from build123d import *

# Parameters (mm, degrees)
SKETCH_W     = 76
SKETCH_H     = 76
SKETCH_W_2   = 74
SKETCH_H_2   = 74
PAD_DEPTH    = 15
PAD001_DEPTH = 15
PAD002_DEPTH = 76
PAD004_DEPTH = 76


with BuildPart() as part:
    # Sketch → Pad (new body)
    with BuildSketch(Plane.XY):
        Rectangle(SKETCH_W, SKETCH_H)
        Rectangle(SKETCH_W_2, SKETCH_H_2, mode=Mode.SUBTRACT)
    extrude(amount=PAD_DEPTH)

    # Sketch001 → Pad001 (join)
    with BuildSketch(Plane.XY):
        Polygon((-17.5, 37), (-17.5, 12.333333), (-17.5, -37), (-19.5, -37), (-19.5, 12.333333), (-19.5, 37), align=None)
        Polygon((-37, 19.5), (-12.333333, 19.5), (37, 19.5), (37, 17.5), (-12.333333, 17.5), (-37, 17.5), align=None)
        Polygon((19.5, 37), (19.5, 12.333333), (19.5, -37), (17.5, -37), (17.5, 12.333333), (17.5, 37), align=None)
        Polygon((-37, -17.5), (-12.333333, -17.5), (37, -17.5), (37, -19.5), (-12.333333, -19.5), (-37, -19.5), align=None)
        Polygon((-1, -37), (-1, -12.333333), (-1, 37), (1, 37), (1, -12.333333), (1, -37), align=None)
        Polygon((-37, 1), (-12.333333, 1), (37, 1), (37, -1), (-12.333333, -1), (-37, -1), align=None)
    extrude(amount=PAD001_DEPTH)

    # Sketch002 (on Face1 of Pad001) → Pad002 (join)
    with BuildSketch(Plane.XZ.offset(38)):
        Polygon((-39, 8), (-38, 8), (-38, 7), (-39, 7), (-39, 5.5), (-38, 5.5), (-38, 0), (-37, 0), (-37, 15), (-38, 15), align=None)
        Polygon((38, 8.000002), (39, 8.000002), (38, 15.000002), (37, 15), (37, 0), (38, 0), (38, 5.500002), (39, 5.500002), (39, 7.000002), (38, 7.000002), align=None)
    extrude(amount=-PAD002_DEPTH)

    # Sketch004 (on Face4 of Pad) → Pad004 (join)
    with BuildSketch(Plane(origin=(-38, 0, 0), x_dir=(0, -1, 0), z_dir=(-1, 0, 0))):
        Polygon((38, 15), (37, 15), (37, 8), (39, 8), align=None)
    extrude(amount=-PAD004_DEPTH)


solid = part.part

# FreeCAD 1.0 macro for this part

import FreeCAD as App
import Part
import Sketcher

doc = App.newDocument("Part")
body = doc.addObject("PartDesign::Body", "Body")

sketch1 = body.newObject("Sketcher::SketchObject", "Sketch")
sketch1.AttachmentSupport = (doc.getObject("XY_Plane"), [""])
sketch1.MapMode = "FlatFace"
sketch1.addGeometry([
    Part.LineSegment(App.Vector(-38, 38, 0), App.Vector(-38, -38, 0)),
    Part.LineSegment(App.Vector(-38, -38, 0), App.Vector(38, -38, 0)),
    Part.LineSegment(App.Vector(38, -38, 0), App.Vector(38, 38, 0)),
    Part.LineSegment(App.Vector(38, 38, 0), App.Vector(-38, 38, 0)),
    Part.LineSegment(App.Vector(37, -37, 0), App.Vector(-37, -37, 0)),
    Part.LineSegment(App.Vector(-37, -37, 0), App.Vector(-37, 37, 0)),
    Part.LineSegment(App.Vector(-37, 37, 0), App.Vector(37, 37, 0)),
    Part.LineSegment(App.Vector(37, 37, 0), App.Vector(37, -37, 0)),
], False)
sketch1.addConstraint([
    Sketcher.Constraint("Coincident", 0, 2, 1, 1),
    Sketcher.Constraint("Coincident", 1, 2, 2, 1),
    Sketcher.Constraint("Coincident", 2, 2, 3, 1),
    Sketcher.Constraint("Coincident", 3, 2, 0, 1),
    Sketcher.Constraint("Coincident", 4, 2, 5, 1),
    Sketcher.Constraint("Coincident", 5, 2, 6, 1),
    Sketcher.Constraint("Coincident", 6, 2, 7, 1),
    Sketcher.Constraint("Coincident", 7, 2, 4, 1),
    Sketcher.Constraint("Vertical", 0),
    Sketcher.Constraint("Horizontal", 1),
    Sketcher.Constraint("Vertical", 2),
    Sketcher.Constraint("Horizontal", 3),
    Sketcher.Constraint("Horizontal", 4),
    Sketcher.Constraint("Vertical", 5),
    Sketcher.Constraint("Horizontal", 6),
    Sketcher.Constraint("Vertical", 7),
    Sketcher.Constraint("Symmetric", 0, 2, 2, 2, -1, 1),
    Sketcher.Constraint("Symmetric", 4, 2, 6, 2, -1, 1),
    Sketcher.Constraint("Equal", 3, 0),
    Sketcher.Constraint("Equal", 6, 5),
    Sketcher.Constraint("DistanceX", 1, 1, 1, 2, 76.0),
    Sketcher.Constraint("DistanceX", 4, 2, 4, 1, 74.0),
])
pad1 = body.newObject("PartDesign::Pad", "Pad")
pad1.Profile = sketch1
pad1.Length = 15

sketch2 = body.newObject("Sketcher::SketchObject", "Sketch001")
sketch2.AttachmentSupport = (doc.getObject("XY_Plane"), [""])
sketch2.MapMode = "FlatFace"
sketch2.addGeometry([
    Part.LineSegment(App.Vector(-17.5, -37, 0), App.Vector(-17.5, -19.5, 0)),
    Part.LineSegment(App.Vector(-17.5, -19.5, 0), App.Vector(-1, -19.5, 0)),
    Part.LineSegment(App.Vector(-1, -19.5, 0), App.Vector(-1, -37, 0)),
    Part.LineSegment(App.Vector(-1, -37, 0), App.Vector(1, -37, 0)),
    Part.LineSegment(App.Vector(1, -37, 0), App.Vector(1, -19.5, 0)),
    Part.LineSegment(App.Vector(1, -19.5, 0), App.Vector(17.5, -19.5, 0)),
    Part.LineSegment(App.Vector(17.5, -19.5, 0), App.Vector(17.5, -37, 0)),
    Part.LineSegment(App.Vector(17.5, -37, 0), App.Vector(19.5, -37, 0)),
    Part.LineSegment(App.Vector(19.5, -37, 0), App.Vector(19.5, -19.5, 0)),
    Part.LineSegment(App.Vector(19.5, -19.5, 0), App.Vector(37, -19.5, 0)),
    Part.LineSegment(App.Vector(37, -19.5, 0), App.Vector(37, -17.5, 0)),
    Part.LineSegment(App.Vector(37, -17.5, 0), App.Vector(19.5, -17.5, 0)),
    Part.LineSegment(App.Vector(19.5, -17.5, 0), App.Vector(19.5, -1, 0)),
    Part.LineSegment(App.Vector(19.5, -1, 0), App.Vector(37, -1, 0)),
    Part.LineSegment(App.Vector(37, -1, 0), App.Vector(37, 1, 0)),
    Part.LineSegment(App.Vector(37, 1, 0), App.Vector(19.5, 1, 0)),
    Part.LineSegment(App.Vector(19.5, 1, 0), App.Vector(19.5, 17.5, 0)),
    Part.LineSegment(App.Vector(19.5, 17.5, 0), App.Vector(37, 17.5, 0)),
    Part.LineSegment(App.Vector(37, 17.5, 0), App.Vector(37, 19.5, 0)),
    Part.LineSegment(App.Vector(37, 19.5, 0), App.Vector(19.5, 19.5, 0)),
    Part.LineSegment(App.Vector(19.5, 19.5, 0), App.Vector(19.5, 37, 0)),
    Part.LineSegment(App.Vector(19.5, 37, 0), App.Vector(17.5, 37, 0)),
    Part.LineSegment(App.Vector(17.5, 37, 0), App.Vector(17.5, 19.5, 0)),
    Part.LineSegment(App.Vector(17.5, 19.5, 0), App.Vector(1, 19.5, 0)),
    Part.LineSegment(App.Vector(1, 19.5, 0), App.Vector(1, 37, 0)),
    Part.LineSegment(App.Vector(1, 37, 0), App.Vector(-1, 37, 0)),
    Part.LineSegment(App.Vector(-1, 37, 0), App.Vector(-1, 19.5, 0)),
    Part.LineSegment(App.Vector(-1, 19.5, 0), App.Vector(-17.5, 19.5, 0)),
    Part.LineSegment(App.Vector(-17.5, 19.5, 0), App.Vector(-17.5, 37, 0)),
    Part.LineSegment(App.Vector(-17.5, 37, 0), App.Vector(-19.5, 37, 0)),
    Part.LineSegment(App.Vector(-19.5, 37, 0), App.Vector(-19.5, 19.5, 0)),
    Part.LineSegment(App.Vector(-19.5, 19.5, 0), App.Vector(-37, 19.5, 0)),
    Part.LineSegment(App.Vector(-37, 19.5, 0), App.Vector(-37, 17.5, 0)),
    Part.LineSegment(App.Vector(-37, 17.5, 0), App.Vector(-19.5, 17.5, 0)),
    Part.LineSegment(App.Vector(-19.5, 17.5, 0), App.Vector(-19.5, 1, 0)),
    Part.LineSegment(App.Vector(-19.5, 1, 0), App.Vector(-37, 1, 0)),
    Part.LineSegment(App.Vector(-37, 1, 0), App.Vector(-37, -1, 0)),
    Part.LineSegment(App.Vector(-37, -1, 0), App.Vector(-19.5, -1, 0)),
    Part.LineSegment(App.Vector(-19.5, -1, 0), App.Vector(-19.5, -17.5, 0)),
    Part.LineSegment(App.Vector(-19.5, -17.5, 0), App.Vector(-37, -17.5, 0)),
    Part.LineSegment(App.Vector(-37, -17.5, 0), App.Vector(-37, -19.5, 0)),
    Part.LineSegment(App.Vector(-37, -19.5, 0), App.Vector(-19.5, -19.5, 0)),
    Part.LineSegment(App.Vector(-19.5, -19.5, 0), App.Vector(-19.5, -37, 0)),
    Part.LineSegment(App.Vector(-19.5, -37, 0), App.Vector(-17.5, -37, 0)),
    Part.LineSegment(App.Vector(17.5, -1, 0), App.Vector(17.5, -17.5, 0)),
    Part.LineSegment(App.Vector(17.5, -17.5, 0), App.Vector(1, -17.5, 0)),
    Part.LineSegment(App.Vector(1, -17.5, 0), App.Vector(1, -1, 0)),
    Part.LineSegment(App.Vector(1, -1, 0), App.Vector(17.5, -1, 0)),
    Part.LineSegment(App.Vector(-1, -1, 0), App.Vector(-1, -17.5, 0)),
    Part.LineSegment(App.Vector(-1, -17.5, 0), App.Vector(-17.5, -17.5, 0)),
    Part.LineSegment(App.Vector(-17.5, -17.5, 0), App.Vector(-17.5, -1, 0)),
    Part.LineSegment(App.Vector(-17.5, -1, 0), App.Vector(-1, -1, 0)),
    Part.LineSegment(App.Vector(-17.5, 1, 0), App.Vector(-17.5, 17.5, 0)),
    Part.LineSegment(App.Vector(-17.5, 17.5, 0), App.Vector(-1, 17.5, 0)),
    Part.LineSegment(App.Vector(-1, 17.5, 0), App.Vector(-1, 1, 0)),
    Part.LineSegment(App.Vector(-1, 1, 0), App.Vector(-17.5, 1, 0)),
    Part.LineSegment(App.Vector(1, 1, 0), App.Vector(1, 17.5, 0)),
    Part.LineSegment(App.Vector(1, 17.5, 0), App.Vector(17.5, 17.5, 0)),
    Part.LineSegment(App.Vector(17.5, 17.5, 0), App.Vector(17.5, 1, 0)),
    Part.LineSegment(App.Vector(17.5, 1, 0), App.Vector(1, 1, 0)),
], False)
sketch2.addConstraint([
    Sketcher.Constraint("Coincident", 0, 2, 1, 1),
    Sketcher.Constraint("Coincident", 1, 2, 2, 1),
    Sketcher.Constraint("Coincident", 2, 2, 3, 1),
    Sketcher.Constraint("Coincident", 3, 2, 4, 1),
    Sketcher.Constraint("Coincident", 4, 2, 5, 1),
    Sketcher.Constraint("Coincident", 5, 2, 6, 1),
    Sketcher.Constraint("Coincident", 6, 2, 7, 1),
    Sketcher.Constraint("Coincident", 7, 2, 8, 1),
    Sketcher.Constraint("Coincident", 8, 2, 9, 1),
    Sketcher.Constraint("Coincident", 9, 2, 10, 1),
    Sketcher.Constraint("Coincident", 10, 2, 11, 1),
    Sketcher.Constraint("Coincident", 11, 2, 12, 1),
    Sketcher.Constraint("Coincident", 12, 2, 13, 1),
    Sketcher.Constraint("Coincident", 13, 2, 14, 1),
    Sketcher.Constraint("Coincident", 14, 2, 15, 1),
    Sketcher.Constraint("Coincident", 15, 2, 16, 1),
    Sketcher.Constraint("Coincident", 16, 2, 17, 1),
    Sketcher.Constraint("Coincident", 17, 2, 18, 1),
    Sketcher.Constraint("Coincident", 18, 2, 19, 1),
    Sketcher.Constraint("Coincident", 19, 2, 20, 1),
    Sketcher.Constraint("Coincident", 20, 2, 21, 1),
    Sketcher.Constraint("Coincident", 21, 2, 22, 1),
    Sketcher.Constraint("Coincident", 22, 2, 23, 1),
    Sketcher.Constraint("Coincident", 23, 2, 24, 1),
    Sketcher.Constraint("Coincident", 24, 2, 25, 1),
    Sketcher.Constraint("Coincident", 25, 2, 26, 1),
    Sketcher.Constraint("Coincident", 26, 2, 27, 1),
    Sketcher.Constraint("Coincident", 27, 2, 28, 1),
    Sketcher.Constraint("Coincident", 28, 2, 29, 1),
    Sketcher.Constraint("Coincident", 29, 2, 30, 1),
    Sketcher.Constraint("Coincident", 30, 2, 31, 1),
    Sketcher.Constraint("Coincident", 31, 2, 32, 1),
    Sketcher.Constraint("Coincident", 32, 2, 33, 1),
    Sketcher.Constraint("Coincident", 33, 2, 34, 1),
    Sketcher.Constraint("Coincident", 34, 2, 35, 1),
    Sketcher.Constraint("Coincident", 35, 2, 36, 1),
    Sketcher.Constraint("Coincident", 36, 2, 37, 1),
    Sketcher.Constraint("Coincident", 37, 2, 38, 1),
    Sketcher.Constraint("Coincident", 38, 2, 39, 1),
    Sketcher.Constraint("Coincident", 39, 2, 40, 1),
    Sketcher.Constraint("Coincident", 40, 2, 41, 1),
    Sketcher.Constraint("Coincident", 41, 2, 42, 1),
    Sketcher.Constraint("Coincident", 42, 2, 43, 1),
    Sketcher.Constraint("Coincident", 43, 2, 0, 1),
    Sketcher.Constraint("Coincident", 44, 2, 45, 1),
    Sketcher.Constraint("Coincident", 45, 2, 46, 1),
    Sketcher.Constraint("Coincident", 46, 2, 47, 1),
    Sketcher.Constraint("Coincident", 47, 2, 44, 1),
    Sketcher.Constraint("Coincident", 48, 2, 49, 1),
    Sketcher.Constraint("Coincident", 49, 2, 50, 1),
    Sketcher.Constraint("Coincident", 50, 2, 51, 1),
    Sketcher.Constraint("Coincident", 51, 2, 48, 1),
    Sketcher.Constraint("Coincident", 52, 2, 53, 1),
    Sketcher.Constraint("Coincident", 53, 2, 54, 1),
    Sketcher.Constraint("Coincident", 54, 2, 55, 1),
    Sketcher.Constraint("Coincident", 55, 2, 52, 1),
    Sketcher.Constraint("Coincident", 56, 2, 57, 1),
    Sketcher.Constraint("Coincident", 57, 2, 58, 1),
    Sketcher.Constraint("Coincident", 58, 2, 59, 1),
    Sketcher.Constraint("Coincident", 59, 2, 56, 1),
    Sketcher.Constraint("Vertical", 0),
    Sketcher.Constraint("Horizontal", 1),
    Sketcher.Constraint("Vertical", 2),
    Sketcher.Constraint("Horizontal", 3),
    Sketcher.Constraint("Vertical", 4),
    Sketcher.Constraint("Horizontal", 5),
    Sketcher.Constraint("Vertical", 6),
    Sketcher.Constraint("Horizontal", 7),
    Sketcher.Constraint("Vertical", 8),
    Sketcher.Constraint("Horizontal", 9),
    Sketcher.Constraint("Vertical", 10),
    Sketcher.Constraint("Horizontal", 11),
    Sketcher.Constraint("Vertical", 12),
    Sketcher.Constraint("Horizontal", 13),
    Sketcher.Constraint("Vertical", 14),
    Sketcher.Constraint("Horizontal", 15),
    Sketcher.Constraint("Vertical", 16),
    Sketcher.Constraint("Horizontal", 17),
    Sketcher.Constraint("Vertical", 18),
    Sketcher.Constraint("Horizontal", 19),
    Sketcher.Constraint("Vertical", 20),
    Sketcher.Constraint("Horizontal", 21),
    Sketcher.Constraint("Vertical", 22),
    Sketcher.Constraint("Horizontal", 23),
    Sketcher.Constraint("Vertical", 24),
    Sketcher.Constraint("Horizontal", 25),
    Sketcher.Constraint("Vertical", 26),
    Sketcher.Constraint("Horizontal", 27),
    Sketcher.Constraint("Vertical", 28),
    Sketcher.Constraint("Horizontal", 29),
    Sketcher.Constraint("Vertical", 30),
    Sketcher.Constraint("Horizontal", 31),
    Sketcher.Constraint("Vertical", 32),
    Sketcher.Constraint("Horizontal", 33),
    Sketcher.Constraint("Vertical", 34),
    Sketcher.Constraint("Horizontal", 35),
    Sketcher.Constraint("Vertical", 36),
    Sketcher.Constraint("Horizontal", 37),
    Sketcher.Constraint("Vertical", 38),
    Sketcher.Constraint("Horizontal", 39),
    Sketcher.Constraint("Vertical", 40),
    Sketcher.Constraint("Horizontal", 41),
    Sketcher.Constraint("Vertical", 42),
    Sketcher.Constraint("Horizontal", 43),
    Sketcher.Constraint("Vertical", 44),
    Sketcher.Constraint("Horizontal", 45),
    Sketcher.Constraint("Vertical", 46),
    Sketcher.Constraint("Horizontal", 47),
    Sketcher.Constraint("Vertical", 48),
    Sketcher.Constraint("Horizontal", 49),
    Sketcher.Constraint("Vertical", 50),
    Sketcher.Constraint("Horizontal", 51),
    Sketcher.Constraint("Vertical", 52),
    Sketcher.Constraint("Horizontal", 53),
    Sketcher.Constraint("Vertical", 54),
    Sketcher.Constraint("Horizontal", 55),
    Sketcher.Constraint("Vertical", 56),
    Sketcher.Constraint("Horizontal", 57),
    Sketcher.Constraint("Vertical", 58),
    Sketcher.Constraint("Horizontal", 59),
    Sketcher.Constraint("Symmetric", 0, 2, 22, 2, -1, 1),
    Sketcher.Constraint("Symmetric", 2, 2, 24, 2, -1, 1),
    Sketcher.Constraint("Symmetric", 4, 2, 26, 2, -1, 1),
    Sketcher.Constraint("Symmetric", 6, 2, 28, 2, -1, 1),
    Sketcher.Constraint("Symmetric", 8, 2, 30, 2, -1, 1),
    Sketcher.Constraint("Symmetric", 10, 2, 32, 2, -1, 1),
    Sketcher.Constraint("Symmetric", 12, 2, 34, 2, -1, 1),
    Sketcher.Constraint("Symmetric", 14, 2, 36, 2, -1, 1),
    Sketcher.Constraint("Symmetric", 16, 2, 38, 2, -1, 1),
    Sketcher.Constraint("Symmetric", 18, 2, 40, 2, -1, 1),
    Sketcher.Constraint("Symmetric", 20, 2, 42, 2, -1, 1),
    Sketcher.Constraint("Symmetric", 44, 2, 52, 2, -1, 1),
    Sketcher.Constraint("Symmetric", 46, 2, 54, 2, -1, 1),
    Sketcher.Constraint("Symmetric", 48, 2, 56, 2, -1, 1),
    Sketcher.Constraint("Symmetric", 50, 2, 58, 2, -1, 1),
    Sketcher.Constraint("Symmetric", 1, 2, 4, 2, -2),
    Sketcher.Constraint("Symmetric", 21, 2, 28, 2, -2),
    Sketcher.Constraint("Symmetric", 19, 2, 30, 2, -2),
    Sketcher.Constraint("Symmetric", 17, 2, 32, 2, -2),
    Sketcher.Constraint("Symmetric", 15, 2, 34, 2, -2),
    Sketcher.Constraint("Symmetric", 45, 2, 48, 2, -2),
    Sketcher.Constraint("Symmetric", 47, 2, 50, 2, -2),
    Sketcher.Constraint("Horizontal", 3, 2, 6, 2),
    Sketcher.Constraint("Horizontal", 5, 2, 8, 2),
    Sketcher.Constraint("Horizontal", 39, 2, 44, 2),
    Sketcher.Constraint("Horizontal", 37, 2, 46, 2),
    Sketcher.Constraint("Vertical", 8, 2, 11, 2),
    Sketcher.Constraint("Vertical", 10, 2, 13, 2),
    Sketcher.Constraint("Vertical", 22, 2, 44, 2),
    Sketcher.Constraint("Vertical", 24, 2, 45, 2),
    Sketcher.Constraint("Equal", 3, 7),
    Sketcher.Constraint("Equal", 41, 0),
    Sketcher.Constraint("Equal", 43, 10),
    Sketcher.Constraint("Equal", 59, 12),
    Sketcher.Constraint("Equal", 10, 14),
    Sketcher.Constraint("DistanceX", 3, 1, 3, 2, 2.0),
    Sketcher.Constraint("DistanceX", 1, 1, 1, 2, 16.5),
    Sketcher.Constraint("DistanceX", 9, 1, 9, 2, 17.5),
])
pad2 = body.newObject("PartDesign::Pad", "Pad001")
pad2.Profile = sketch2
pad2.Length = 15

sketch3 = body.newObject("Sketcher::SketchObject", "Sketch002")
sketch3.AttachmentSupport = (doc.getObject("XZ_Plane"), [""])
sketch3.MapMode = "FlatFace"
sketch3.AttachmentOffset = App.Placement(App.Vector(0, 0, 38), App.Rotation())
sketch3.addGeometry([
    Part.LineSegment(App.Vector(-39, 8, 0), App.Vector(-38, 8, 0)),
    Part.LineSegment(App.Vector(-38, 8, 0), App.Vector(-38, 7, 0)),
    Part.LineSegment(App.Vector(-38, 7, 0), App.Vector(-39, 7, 0)),
    Part.LineSegment(App.Vector(-39, 7, 0), App.Vector(-39, 5.5, 0)),
    Part.LineSegment(App.Vector(-39, 5.5, 0), App.Vector(-38, 5.5, 0)),
    Part.LineSegment(App.Vector(-38, 5.5, 0), App.Vector(-38, 0, 0)),
    Part.LineSegment(App.Vector(-38, 0, 0), App.Vector(-37, 0, 0)),
    Part.LineSegment(App.Vector(-37, 0, 0), App.Vector(-37, 15, 0)),
    Part.LineSegment(App.Vector(-37, 15, 0), App.Vector(-38, 15, 0)),
    Part.LineSegment(App.Vector(-38, 15, 0), App.Vector(-39, 8, 0)),
    Part.LineSegment(App.Vector(38, 8, 0), App.Vector(39, 8, 0)),
    Part.LineSegment(App.Vector(39, 8, 0), App.Vector(38, 15, 0)),
    Part.LineSegment(App.Vector(38, 15, 0), App.Vector(37, 15, 0)),
    Part.LineSegment(App.Vector(37, 15, 0), App.Vector(37, 0, 0)),
    Part.LineSegment(App.Vector(37, 0, 0), App.Vector(38, 0, 0)),
    Part.LineSegment(App.Vector(38, 0, 0), App.Vector(38, 5.5, 0)),
    Part.LineSegment(App.Vector(38, 5.5, 0), App.Vector(39, 5.5, 0)),
    Part.LineSegment(App.Vector(39, 5.5, 0), App.Vector(39, 7, 0)),
    Part.LineSegment(App.Vector(39, 7, 0), App.Vector(38, 7, 0)),
    Part.LineSegment(App.Vector(38, 7, 0), App.Vector(38, 8, 0)),
], False)
sketch3.addConstraint([
    Sketcher.Constraint("Coincident", 0, 2, 1, 1),
    Sketcher.Constraint("Coincident", 1, 2, 2, 1),
    Sketcher.Constraint("Coincident", 2, 2, 3, 1),
    Sketcher.Constraint("Coincident", 3, 2, 4, 1),
    Sketcher.Constraint("Coincident", 4, 2, 5, 1),
    Sketcher.Constraint("Coincident", 5, 2, 6, 1),
    Sketcher.Constraint("Coincident", 6, 2, 7, 1),
    Sketcher.Constraint("Coincident", 7, 2, 8, 1),
    Sketcher.Constraint("Coincident", 8, 2, 9, 1),
    Sketcher.Constraint("Coincident", 9, 2, 0, 1),
    Sketcher.Constraint("Coincident", 10, 2, 11, 1),
    Sketcher.Constraint("Coincident", 11, 2, 12, 1),
    Sketcher.Constraint("Coincident", 12, 2, 13, 1),
    Sketcher.Constraint("Coincident", 13, 2, 14, 1),
    Sketcher.Constraint("Coincident", 14, 2, 15, 1),
    Sketcher.Constraint("Coincident", 15, 2, 16, 1),
    Sketcher.Constraint("Coincident", 16, 2, 17, 1),
    Sketcher.Constraint("Coincident", 17, 2, 18, 1),
    Sketcher.Constraint("Coincident", 18, 2, 19, 1),
    Sketcher.Constraint("Coincident", 19, 2, 10, 1),
    Sketcher.Constraint("Horizontal", 0),
    Sketcher.Constraint("Vertical", 1),
    Sketcher.Constraint("Horizontal", 2),
    Sketcher.Constraint("Vertical", 3),
    Sketcher.Constraint("Horizontal", 4),
    Sketcher.Constraint("Vertical", 5),
    Sketcher.Constraint("Horizontal", 6),
    Sketcher.Constraint("Vertical", 7),
    Sketcher.Constraint("Horizontal", 8),
    Sketcher.Constraint("Horizontal", 10),
    Sketcher.Constraint("Vertical", 13),
    Sketcher.Constraint("Horizontal", 14),
    Sketcher.Constraint("Vertical", 15),
    Sketcher.Constraint("Horizontal", 16),
    Sketcher.Constraint("Vertical", 17),
    Sketcher.Constraint("Horizontal", 18),
    Sketcher.Constraint("Vertical", 19),
    Sketcher.Constraint("Symmetric", 6, 2, 13, 2, -1, 1),
    Sketcher.Constraint("Symmetric", 9, 2, 10, 2, -2),
    Sketcher.Constraint("Symmetric", 8, 2, 11, 2, -2),
    Sketcher.Constraint("Symmetric", 5, 2, 14, 2, -2),
    Sketcher.Constraint("Symmetric", 3, 2, 16, 2, -2),
    Sketcher.Constraint("Symmetric", 1, 2, 18, 2, -2),
    Sketcher.Constraint("Horizontal", 8, 2, 12, 2),
    Sketcher.Constraint("Vertical", 1, 2, 4, 2),
    Sketcher.Constraint("Vertical", 5, 2, 8, 2),
    Sketcher.Constraint("Vertical", 3, 2, 9, 2),
    Sketcher.Constraint("Equal", 4, 6),
    Sketcher.Constraint("Equal", 18, 1),
    Sketcher.Constraint("DistanceX", 0, 1, 0, 2, 1.0),
    Sketcher.Constraint("DistanceY", 7, 1, 7, 2, 15.0),
    Sketcher.Constraint("DistanceY", 3, 2, 3, 1, 1.5),
    Sketcher.Constraint("DistanceY", 5, 2, 5, 1, 5.5),
    Sketcher.Constraint("DistanceX", 0, 2, -1, 1, 38.0),
])
pad3 = body.newObject("PartDesign::Pad", "Pad002")
pad3.Profile = sketch3
pad3.Length = 76
pad3.Reversed = True

sketch4 = body.newObject("Sketcher::SketchObject", "Sketch003")
sketch4.AttachmentSupport = (doc.getObject("YZ_Plane"), [""])
sketch4.MapMode = "FlatFace"
sketch4.AttachmentOffset = App.Placement(App.Vector(0, 0, -38), App.Rotation())
sketch4.addGeometry([
    Part.LineSegment(App.Vector(-38, 15, 0), App.Vector(-37, 15, 0)),
    Part.LineSegment(App.Vector(-37, 15, 0), App.Vector(-37, 8, 0)),
    Part.LineSegment(App.Vector(-37, 8, 0), App.Vector(-39, 8, 0)),
    Part.LineSegment(App.Vector(-39, 8, 0), App.Vector(-38, 15, 0)),
], False)
sketch4.addConstraint([
    Sketcher.Constraint("Coincident", 0, 2, 1, 1),
    Sketcher.Constraint("Coincident", 1, 2, 2, 1),
    Sketcher.Constraint("Coincident", 2, 2, 3, 1),
    Sketcher.Constraint("Coincident", 3, 2, 0, 1),
    Sketcher.Constraint("Horizontal", 0),
    Sketcher.Constraint("Vertical", 1),
    Sketcher.Constraint("Horizontal", 2),
    Sketcher.Constraint("DistanceX", 0, 1, 0, 2, 1.0),
    Sketcher.Constraint("DistanceX", 2, 2, 2, 1, 2.0),
    Sketcher.Constraint("DistanceY", 1, 2, 1, 1, 7.0),
    Sketcher.Constraint("DistanceX", 0, 2, -1, 1, 37.0),
    Sketcher.Constraint("DistanceY", -1, 1, 0, 2, 15.0),
])
pad4 = body.newObject("PartDesign::Pad", "Pad003")
pad4.Profile = sketch4
pad4.Length = 76

doc.recompute()
